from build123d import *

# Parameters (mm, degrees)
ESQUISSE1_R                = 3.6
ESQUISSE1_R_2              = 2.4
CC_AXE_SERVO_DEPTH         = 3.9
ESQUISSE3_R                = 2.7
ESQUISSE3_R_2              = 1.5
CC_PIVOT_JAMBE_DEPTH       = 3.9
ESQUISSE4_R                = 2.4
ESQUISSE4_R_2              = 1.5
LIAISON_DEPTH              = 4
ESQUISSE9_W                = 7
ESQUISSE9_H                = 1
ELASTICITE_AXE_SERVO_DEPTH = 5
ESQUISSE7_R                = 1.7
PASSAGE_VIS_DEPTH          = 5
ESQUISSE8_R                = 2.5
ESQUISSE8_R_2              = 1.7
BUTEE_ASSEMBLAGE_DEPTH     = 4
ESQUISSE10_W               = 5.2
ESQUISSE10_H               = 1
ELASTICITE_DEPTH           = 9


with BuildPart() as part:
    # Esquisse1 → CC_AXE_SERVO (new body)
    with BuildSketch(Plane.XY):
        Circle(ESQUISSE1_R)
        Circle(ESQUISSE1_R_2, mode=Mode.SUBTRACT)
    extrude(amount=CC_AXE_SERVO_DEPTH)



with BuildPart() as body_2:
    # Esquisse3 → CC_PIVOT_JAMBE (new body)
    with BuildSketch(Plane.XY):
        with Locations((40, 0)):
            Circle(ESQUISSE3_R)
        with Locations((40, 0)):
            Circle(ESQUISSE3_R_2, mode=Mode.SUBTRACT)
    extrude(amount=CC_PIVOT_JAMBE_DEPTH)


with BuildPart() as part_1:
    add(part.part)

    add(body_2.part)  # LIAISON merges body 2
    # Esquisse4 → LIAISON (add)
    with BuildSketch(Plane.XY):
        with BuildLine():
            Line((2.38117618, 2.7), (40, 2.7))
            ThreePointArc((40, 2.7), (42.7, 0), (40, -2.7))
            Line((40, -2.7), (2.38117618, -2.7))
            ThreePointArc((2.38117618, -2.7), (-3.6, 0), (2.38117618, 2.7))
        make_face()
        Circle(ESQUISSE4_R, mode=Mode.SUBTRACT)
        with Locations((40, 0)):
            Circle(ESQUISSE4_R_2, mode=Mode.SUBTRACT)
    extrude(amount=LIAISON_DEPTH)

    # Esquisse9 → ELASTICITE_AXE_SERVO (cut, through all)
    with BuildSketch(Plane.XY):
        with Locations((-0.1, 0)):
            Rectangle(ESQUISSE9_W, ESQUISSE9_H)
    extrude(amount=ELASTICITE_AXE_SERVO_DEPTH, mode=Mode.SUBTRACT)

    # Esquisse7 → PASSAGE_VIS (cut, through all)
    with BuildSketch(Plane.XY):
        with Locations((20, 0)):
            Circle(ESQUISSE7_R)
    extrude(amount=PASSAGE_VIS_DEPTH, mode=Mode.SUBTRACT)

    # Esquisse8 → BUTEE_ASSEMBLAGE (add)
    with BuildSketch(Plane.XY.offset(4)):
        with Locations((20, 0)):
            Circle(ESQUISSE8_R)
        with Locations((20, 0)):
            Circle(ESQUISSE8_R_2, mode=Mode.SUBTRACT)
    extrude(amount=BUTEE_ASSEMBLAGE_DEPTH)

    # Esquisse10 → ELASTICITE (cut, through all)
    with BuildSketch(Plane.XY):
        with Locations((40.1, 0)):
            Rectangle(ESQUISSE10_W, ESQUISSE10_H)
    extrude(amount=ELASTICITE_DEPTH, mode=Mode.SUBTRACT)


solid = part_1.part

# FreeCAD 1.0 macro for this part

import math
import FreeCAD as App
import Part
import Sketcher
from FreeCAD import Vector

doc = App.newDocument("Part")
params = doc.addObject("Spreadsheet::Sheet", "Params")
for row, (alias, value) in enumerate([
    ("sketch1_diameter", "7.2 mm"),
    ("sketch1_diameter2", "4.8 mm"),
    ("pad1_length", "3.9 mm"),
    ("sketch2_diameter", "3 mm"),
    ("sketch2_diameter2", "5.4 mm"),
    ("pad2_length", "3.9 mm"),
    ("sketch3_diameter", "3 mm"),
    ("sketch3_diameter2", "4.8 mm"),
    ("sketch3_radius", "3.6 mm"),
    ("sketch3_radius2", "2.7 mm"),
    ("pad3_length", "4 mm"),
    ("sketch4_width", "7 mm"),
    ("sketch4_height", "1 mm"),
    ("sketch5_diameter", "3.4 mm"),
    ("sketch6_diameter", "5 mm"),
    ("sketch6_diameter2", "3.4 mm"),
    ("pad4_length", "4 mm"),
    ("sketch7_height", "1 mm"),
    ("sketch7_width", "5.2 mm"),
], start=1):
    params.set(f"A{row}", alias)
    params.set(f"B{row}", "=" + value)
    params.setAlias(f"B{row}", alias)

body = doc.addObject("PartDesign::Body", "Body")

# Sketch on XY plane
sketch1 = doc.addObject("Sketcher::SketchObject", "Sketch")
body.addObject(sketch1)
sketch1.AttachmentSupport = (doc.XY_Plane, [""])
sketch1.MapMode = "FlatFace"
sketch1.addGeometry([
    Part.Circle(Vector(0, 0, 0), Vector(0, 0, 1), 3.6),
    Part.Circle(Vector(0, 0, 0), Vector(0, 0, 1), 2.4),
], False)
sketch1.addConstraint([
    Sketcher.Constraint("Coincident", 0, 3, -1, 1),
    Sketcher.Constraint("Coincident", 1, 3, -1, 1),
    Sketcher.Constraint("Diameter", 0, 7.2),
    Sketcher.Constraint("Diameter", 1, 4.8),
])
sketch1.setExpression("Constraints[2]", "Params.sketch1_diameter")
sketch1.setExpression("Constraints[3]", "Params.sketch1_diameter2")
pad1 = doc.addObject("PartDesign::Pad", "Pad")
body.addObject(pad1)
pad1.Profile = sketch1
pad1.setExpression("Length", "Params.pad1_length")
body2 = doc.addObject("PartDesign::Body", "Body001")

# Sketch on XY plane
sketch2 = doc.addObject("Sketcher::SketchObject", "Sketch001")
body2.addObject(sketch2)
sketch2.AttachmentSupport = (doc.getObject("XY_Plane001"), [""])
sketch2.MapMode = "FlatFace"
sketch2.addGeometry([
    Part.Circle(Vector(40, 0, 0), Vector(0, 0, 1), 2.7),
    Part.Circle(Vector(40, 0, 0), Vector(0, 0, 1), 1.5),
], False)
sketch2.addConstraint([
    Sketcher.Constraint("Coincident", 1, 3, 0, 3),
    Sketcher.Constraint("PointOnObject", 0, 3, -1),
    Sketcher.Constraint("Diameter", 1, 3.0),
    Sketcher.Constraint("Diameter", 0, 5.4),
    Sketcher.Constraint("DistanceX", -1, 1, 0, 3, 40.0),
])
sketch2.setExpression("Constraints[2]", "Params.sketch2_diameter")
sketch2.setExpression("Constraints[3]", "Params.sketch2_diameter2")
pad2 = doc.addObject("PartDesign::Pad", "Pad001")
body2.addObject(pad2)
pad2.Profile = sketch2
pad2.setExpression("Length", "Params.pad2_length")
body.AllowCompound = True
doc.recompute()

boolean = doc.addObject("PartDesign::Boolean", "Boolean")
body.addObject(boolean)
boolean.Type = "Fuse"
boolean.addObjects([body2])

# Sketch on XY plane
sketch3 = doc.addObject("Sketcher::SketchObject", "Sketch002")
body.addObject(sketch3)
sketch3.AttachmentSupport = (doc.XY_Plane, [""])
sketch3.MapMode = "FlatFace"
sketch3.addGeometry([
    Part.LineSegment(Vector(40, 2.7, 0), Vector(2.381176, 2.7, 0)),  # 0
    Part.ArcOfCircle(Part.Circle(Vector(0, 0, 0), Vector(0, 0, 1), 3.6), math.radians(48.590378), math.radians(311.409622)),  # 1
    Part.LineSegment(Vector(2.381176, -2.7, 0), Vector(40, -2.7, 0)),  # 2
    Part.ArcOfCircle(Part.Circle(Vector(40, 0, 0), Vector(0, 0, 1), 2.7), math.radians(-90), math.radians(90)),  # 3
    Part.Circle(Vector(40, 0, 0), Vector(0, 0, 1), 1.5),  # 4
    Part.Circle(Vector(0, 0, 0), Vector(0, 0, 1), 2.4),  # 5
], False)
sketch3.addConstraint([
    Sketcher.Constraint("Coincident", 0, 2, 1, 1),
    Sketcher.Constraint("Coincident", 1, 2, 2, 1),
    Sketcher.Constraint("Tangent", 2, 2, 3, 1),
    Sketcher.Constraint("Tangent", 3, 2, 0, 1),
    Sketcher.Constraint("Horizontal", 0),
    Sketcher.Constraint("Horizontal", 2),
    Sketcher.Constraint("Coincident", 1, 3, -1, 1),
    Sketcher.Constraint("Coincident", 5, 3, -1, 1),
    Sketcher.Constraint("Coincident", 4, 3, 3, 3),
    Sketcher.Constraint("PointOnObject", 3, 3, -1),
    Sketcher.Constraint("Diameter", 4, 3.0),
    Sketcher.Constraint("Diameter", 5, 4.8),
    Sketcher.Constraint("Radius", 1, 3.6),
    Sketcher.Constraint("Radius", 3, 2.7),
    Sketcher.Constraint("DistanceX", -1, 1, 3, 3, 40.0),
])
sketch3.setExpression("Constraints[10]", "Params.sketch3_diameter")
sketch3.setExpression("Constraints[11]", "Params.sketch3_diameter2")
sketch3.setExpression("Constraints[12]", "Params.sketch3_radius")
sketch3.setExpression("Constraints[13]", "Params.sketch3_radius2")
pad3 = doc.addObject("PartDesign::Pad", "Pad002")
body.addObject(pad3)
pad3.Profile = sketch3
pad3.setExpression("Length", "Params.pad3_length")

# Sketch on XY plane
sketch4 = doc.addObject("Sketcher::SketchObject", "Sketch003")
body.addObject(sketch4)
sketch4.AttachmentSupport = (doc.XY_Plane, [""])
sketch4.MapMode = "FlatFace"
sketch4.addGeometry([
    Part.LineSegment(Vector(-3.6, 0.5, 0), Vector(-3.6, -0.5, 0)),
    Part.LineSegment(Vector(-3.6, -0.5, 0), Vector(3.4, -0.5, 0)),
    Part.LineSegment(Vector(3.4, -0.5, 0), Vector(3.4, 0.5, 0)),
    Part.LineSegment(Vector(3.4, 0.5, 0), Vector(-3.6, 0.5, 0)),
], False)
sketch4.addConstraint([
    Sketcher.Constraint("Coincident", 0, 2, 1, 1),
    Sketcher.Constraint("Coincident", 1, 2, 2, 1),
    Sketcher.Constraint("Coincident", 2, 2, 3, 1),
    Sketcher.Constraint("Coincident", 3, 2, 0, 1),
    Sketcher.Constraint("Vertical", 0),
    Sketcher.Constraint("Horizontal", 1),
    Sketcher.Constraint("Vertical", 2),
    Sketcher.Constraint("Horizontal", 3),
    Sketcher.Constraint("DistanceX", 1, 1, 1, 2, 7.0),
    Sketcher.Constraint("DistanceY", 0, 2, 0, 1, 1.0),
    Sketcher.Constraint("DistanceX", 0, 2, -1, 1, 3.6),
    Sketcher.Constraint("DistanceY", 0, 2, -1, 1, 0.5),
])
sketch4.setExpression("Constraints[8]", "Params.sketch4_width")
sketch4.setExpression("Constraints[9]", "Params.sketch4_height")
pocket1 = doc.addObject("PartDesign::Pocket", "Pocket")
body.addObject(pocket1)
pocket1.Profile = sketch4
pocket1.Type = "ThroughAll"
pocket1.Reversed = True

# Sketch on XY plane
sketch5 = doc.addObject("Sketcher::SketchObject", "Sketch004")
body.addObject(sketch5)
sketch5.AttachmentSupport = (doc.XY_Plane, [""])
sketch5.MapMode = "FlatFace"
sketch5.addGeometry(Part.Circle(Vector(20, 0, 0), Vector(0, 0, 1), 1.7), False)
sketch5.addConstraint([
    Sketcher.Constraint("PointOnObject", 0, 3, -1),
    Sketcher.Constraint("Diameter", 0, 3.4),
    Sketcher.Constraint("DistanceX", -1, 1, 0, 3, 20.0),
])
sketch5.setExpression("Constraints[1]", "Params.sketch5_diameter")
pocket2 = doc.addObject("PartDesign::Pocket", "Pocket001")
body.addObject(pocket2)
pocket2.Profile = sketch5
pocket2.Type = "ThroughAll"
pocket2.Reversed = True

# Sketch on XY plane
sketch6 = doc.addObject("Sketcher::SketchObject", "Sketch005")
body.addObject(sketch6)
sketch6.AttachmentSupport = (doc.XY_Plane, [""])
sketch6.MapMode = "FlatFace"
sketch6.AttachmentOffset = App.Placement(Vector(0, 0, 4), App.Rotation())
sketch6.addGeometry([
    Part.Circle(Vector(20, 0, 0), Vector(0, 0, 1), 2.5),
    Part.Circle(Vector(20, 0, 0), Vector(0, 0, 1), 1.7),
], False)
sketch6.addConstraint([
    Sketcher.Constraint("Coincident", 1, 3, 0, 3),
    Sketcher.Constraint("PointOnObject", 0, 3, -1),
    Sketcher.Constraint("Diameter", 0, 5.0),
    Sketcher.Constraint("Diameter", 1, 3.4),
    Sketcher.Constraint("DistanceX", -1, 1, 0, 3, 20.0),
])
sketch6.setExpression("Constraints[2]", "Params.sketch6_diameter")
sketch6.setExpression("Constraints[3]", "Params.sketch6_diameter2")
pad4 = doc.addObject("PartDesign::Pad", "Pad003")
body.addObject(pad4)
pad4.Profile = sketch6
pad4.setExpression("Length", "Params.pad4_length")

# Sketch on XY plane
sketch7 = doc.addObject("Sketcher::SketchObject", "Sketch006")
body.addObject(sketch7)
sketch7.AttachmentSupport = (doc.XY_Plane, [""])
sketch7.MapMode = "FlatFace"
sketch7.addGeometry([
    Part.LineSegment(Vector(37.5, 0.5, 0), Vector(37.5, -0.5, 0)),
    Part.LineSegment(Vector(37.5, -0.5, 0), Vector(42.7, -0.5, 0)),
    Part.LineSegment(Vector(42.7, -0.5, 0), Vector(42.7, 0.5, 0)),
    Part.LineSegment(Vector(42.7, 0.5, 0), Vector(37.5, 0.5, 0)),
], False)
sketch7.addConstraint([
    Sketcher.Constraint("Coincident", 0, 2, 1, 1),
    Sketcher.Constraint("Coincident", 1, 2, 2, 1),
    Sketcher.Constraint("Coincident", 2, 2, 3, 1),
    Sketcher.Constraint("Coincident", 3, 2, 0, 1),
    Sketcher.Constraint("Vertical", 0),
    Sketcher.Constraint("Horizontal", 1),
    Sketcher.Constraint("Vertical", 2),
    Sketcher.Constraint("Horizontal", 3),
    Sketcher.Constraint("DistanceY", 0, 2, 0, 1, 1.0),
    Sketcher.Constraint("DistanceX", 1, 1, 1, 2, 5.2),
    Sketcher.Constraint("DistanceX", -1, 1, 0, 2, 37.5),
    Sketcher.Constraint("DistanceY", 0, 2, -1, 1, 0.5),
])
sketch7.setExpression("Constraints[8]", "Params.sketch7_height")
sketch7.setExpression("Constraints[9]", "Params.sketch7_width")
pocket3 = doc.addObject("PartDesign::Pocket", "Pocket002")
body.addObject(pocket3)
pocket3.Profile = sketch7
pocket3.Type = "ThroughAll"
pocket3.Reversed = True

doc.recompute()
